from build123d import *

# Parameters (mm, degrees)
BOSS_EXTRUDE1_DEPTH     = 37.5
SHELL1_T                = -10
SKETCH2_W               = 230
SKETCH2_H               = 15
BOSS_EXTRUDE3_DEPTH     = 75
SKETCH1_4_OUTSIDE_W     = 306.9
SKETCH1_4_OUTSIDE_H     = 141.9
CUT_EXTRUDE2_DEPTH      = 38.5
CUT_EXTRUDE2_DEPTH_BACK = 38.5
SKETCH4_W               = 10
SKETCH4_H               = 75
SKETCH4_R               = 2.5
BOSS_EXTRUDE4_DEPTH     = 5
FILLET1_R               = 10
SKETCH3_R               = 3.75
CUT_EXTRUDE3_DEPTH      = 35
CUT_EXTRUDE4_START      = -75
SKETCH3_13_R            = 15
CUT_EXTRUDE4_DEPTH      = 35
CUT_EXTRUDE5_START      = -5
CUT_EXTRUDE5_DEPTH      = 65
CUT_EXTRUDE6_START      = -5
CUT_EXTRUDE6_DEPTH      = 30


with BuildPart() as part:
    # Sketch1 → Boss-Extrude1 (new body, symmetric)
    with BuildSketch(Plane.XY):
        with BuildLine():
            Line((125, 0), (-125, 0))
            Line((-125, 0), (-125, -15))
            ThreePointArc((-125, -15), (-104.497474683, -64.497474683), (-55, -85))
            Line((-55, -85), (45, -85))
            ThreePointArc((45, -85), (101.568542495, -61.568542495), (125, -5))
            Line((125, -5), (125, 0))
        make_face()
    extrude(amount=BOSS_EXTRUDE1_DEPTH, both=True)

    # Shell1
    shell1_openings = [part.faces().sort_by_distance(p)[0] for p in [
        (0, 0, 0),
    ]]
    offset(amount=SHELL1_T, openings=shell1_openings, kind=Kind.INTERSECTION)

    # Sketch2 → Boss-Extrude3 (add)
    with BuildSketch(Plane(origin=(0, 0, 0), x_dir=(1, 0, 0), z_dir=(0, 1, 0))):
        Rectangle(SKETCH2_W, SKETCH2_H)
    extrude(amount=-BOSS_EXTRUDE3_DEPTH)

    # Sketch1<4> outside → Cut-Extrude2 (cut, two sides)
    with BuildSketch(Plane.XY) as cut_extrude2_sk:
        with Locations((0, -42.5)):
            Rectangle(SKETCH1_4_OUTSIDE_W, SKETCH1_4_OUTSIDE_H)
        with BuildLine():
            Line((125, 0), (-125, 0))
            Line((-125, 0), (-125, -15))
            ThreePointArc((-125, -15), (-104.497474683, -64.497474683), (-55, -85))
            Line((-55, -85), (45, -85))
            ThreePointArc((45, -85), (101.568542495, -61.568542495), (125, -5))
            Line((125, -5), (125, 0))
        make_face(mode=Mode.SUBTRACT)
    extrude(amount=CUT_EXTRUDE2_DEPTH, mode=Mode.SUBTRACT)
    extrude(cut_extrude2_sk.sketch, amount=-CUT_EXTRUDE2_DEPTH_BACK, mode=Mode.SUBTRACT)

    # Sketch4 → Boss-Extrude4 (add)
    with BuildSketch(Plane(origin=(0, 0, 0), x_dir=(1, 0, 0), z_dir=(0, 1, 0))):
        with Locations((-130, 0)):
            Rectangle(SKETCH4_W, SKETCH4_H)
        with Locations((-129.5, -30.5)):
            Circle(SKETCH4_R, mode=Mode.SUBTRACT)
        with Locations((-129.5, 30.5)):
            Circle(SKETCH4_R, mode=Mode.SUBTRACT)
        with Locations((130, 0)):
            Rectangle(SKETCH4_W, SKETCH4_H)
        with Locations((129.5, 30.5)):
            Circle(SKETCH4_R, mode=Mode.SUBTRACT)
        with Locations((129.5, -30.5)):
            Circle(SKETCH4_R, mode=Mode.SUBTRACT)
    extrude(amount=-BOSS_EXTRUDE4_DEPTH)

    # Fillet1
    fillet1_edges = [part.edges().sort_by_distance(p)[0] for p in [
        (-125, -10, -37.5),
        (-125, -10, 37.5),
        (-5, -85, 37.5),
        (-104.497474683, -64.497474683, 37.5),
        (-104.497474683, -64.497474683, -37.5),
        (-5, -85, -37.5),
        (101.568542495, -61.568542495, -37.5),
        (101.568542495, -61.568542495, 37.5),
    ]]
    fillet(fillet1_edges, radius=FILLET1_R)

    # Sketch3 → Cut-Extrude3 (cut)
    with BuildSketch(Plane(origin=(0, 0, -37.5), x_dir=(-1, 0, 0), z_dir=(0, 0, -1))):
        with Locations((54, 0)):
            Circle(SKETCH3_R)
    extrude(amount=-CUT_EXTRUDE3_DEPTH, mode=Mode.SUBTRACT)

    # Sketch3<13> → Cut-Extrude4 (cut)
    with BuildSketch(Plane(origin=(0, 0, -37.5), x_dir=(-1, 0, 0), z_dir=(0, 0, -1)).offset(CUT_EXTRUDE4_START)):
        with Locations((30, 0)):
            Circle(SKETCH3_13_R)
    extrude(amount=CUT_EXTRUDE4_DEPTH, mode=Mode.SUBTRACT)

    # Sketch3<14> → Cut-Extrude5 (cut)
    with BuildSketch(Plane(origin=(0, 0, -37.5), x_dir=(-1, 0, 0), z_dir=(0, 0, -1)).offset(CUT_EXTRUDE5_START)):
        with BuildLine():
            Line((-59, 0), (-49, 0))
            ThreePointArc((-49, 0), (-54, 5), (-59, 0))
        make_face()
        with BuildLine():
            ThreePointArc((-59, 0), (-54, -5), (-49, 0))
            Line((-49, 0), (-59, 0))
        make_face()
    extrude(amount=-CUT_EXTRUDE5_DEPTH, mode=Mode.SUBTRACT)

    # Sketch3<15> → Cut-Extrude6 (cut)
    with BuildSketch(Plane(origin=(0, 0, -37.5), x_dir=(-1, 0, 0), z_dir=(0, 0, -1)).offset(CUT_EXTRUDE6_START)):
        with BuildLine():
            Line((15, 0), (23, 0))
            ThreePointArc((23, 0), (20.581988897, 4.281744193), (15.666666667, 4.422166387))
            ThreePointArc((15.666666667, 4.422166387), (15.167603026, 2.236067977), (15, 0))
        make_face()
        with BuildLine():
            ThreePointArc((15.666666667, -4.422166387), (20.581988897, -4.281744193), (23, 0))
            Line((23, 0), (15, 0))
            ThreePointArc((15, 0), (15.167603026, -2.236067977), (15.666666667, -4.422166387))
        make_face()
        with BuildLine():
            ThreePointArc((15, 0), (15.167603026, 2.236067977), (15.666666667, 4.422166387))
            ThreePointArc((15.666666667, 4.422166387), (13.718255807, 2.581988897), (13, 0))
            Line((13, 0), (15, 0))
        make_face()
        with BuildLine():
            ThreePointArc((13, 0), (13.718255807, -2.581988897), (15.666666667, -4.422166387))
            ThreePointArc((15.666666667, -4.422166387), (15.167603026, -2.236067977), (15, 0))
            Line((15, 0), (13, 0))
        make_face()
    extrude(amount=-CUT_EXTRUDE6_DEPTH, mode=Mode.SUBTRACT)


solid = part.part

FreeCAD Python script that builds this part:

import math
import FreeCAD as App
import Part
import Sketcher
from FreeCAD import Vector
Q = App.Units.Quantity


def edges_at(feature, points):
    """Names of the edges that pass closest to the given points."""
    edges = feature.Shape.Edges
    near = lambda p: min(range(len(edges)), key=lambda i: edges[i].distToShape(Part.Vertex(*p))[0])
    return sorted({f"Edge{near(p) + 1}" for p in points})


def faces_at(feature, points):
    """Names of the faces that lie closest to the given points."""
    faces = feature.Shape.Faces
    near = lambda p: min(range(len(faces)), key=lambda i: faces[i].distToShape(Part.Vertex(*p))[0])
    return sorted({f"Face{near(p) + 1}" for p in points})

doc = App.newDocument("Part")
body = doc.addObject("PartDesign::Body", "Body")

sketch1 = body.newObject("Sketcher::SketchObject", "Sketch")
sketch1.AttachmentSupport = (doc.getObject("XY_Plane"), [""])
sketch1.MapMode = "FlatFace"
sketch1.addGeometry([
    Part.LineSegment(Vector(125, 0, 0), Vector(-125, 0, 0)),
    Part.LineSegment(Vector(-125, 0, 0), Vector(-125, -15, 0)),
    Part.ArcOfCircle(Part.Circle(Vector(-55, -15, 0), Vector(0, 0, 1), 70), math.radians(180), math.radians(270)),
    Part.LineSegment(Vector(-55, -85, 0), Vector(45, -85, 0)),
    Part.ArcOfCircle(Part.Circle(Vector(45, -5, 0), Vector(0, 0, 1), 80), math.radians(-90), math.radians(0)),
    Part.LineSegment(Vector(125, -5, 0), Vector(125, 0, 0)),
], False)
sketch1.addConstraint([
    Sketcher.Constraint("Coincident", 0, 2, 1, 1),
    Sketcher.Constraint("Tangent", 1, 2, 2, 1),
    Sketcher.Constraint("Tangent", 2, 2, 3, 1),
    Sketcher.Constraint("Tangent", 3, 2, 4, 1),
    Sketcher.Constraint("Tangent", 4, 2, 5, 1),
    Sketcher.Constraint("Coincident", 5, 2, 0, 1),
    Sketcher.Constraint("Horizontal", 0),
    Sketcher.Constraint("Vertical", 1),
    Sketcher.Constraint("Horizontal", 3),
    Sketcher.Constraint("Vertical", 5),
    Sketcher.Constraint("Symmetric", 0, 2, 5, 2, -1, 1),
    Sketcher.Constraint("Radius", 2, Q("70 mm")),
    Sketcher.Constraint("Radius", 4, Q("80 mm")),
    Sketcher.Constraint("DistanceX", 0, 2, 0, 1, Q("250 mm")),
    Sketcher.Constraint("DistanceY", 1, 2, 1, 1, Q("15 mm")),
])
pad1 = body.newObject("PartDesign::Pad", "Pad")
pad1.Profile = sketch1
pad1.Length = 75
pad1.Midplane = True
doc.recompute()

thickness = body.newObject("PartDesign::Thickness", "Thickness")
thickness.Base = (pad1, faces_at(pad1, [(0, 0, 0)]))
thickness.Value = 10
thickness.Reversed = True
thickness.Join = "Intersection"

sketch2 = body.newObject("Sketcher::SketchObject", "Sketch001")
sketch2.AttachmentSupport = (doc.getObject("XZ_Plane"), [""])
sketch2.MapMode = "FlatFace"
sketch2.addGeometry([
    Part.LineSegment(Vector(-115, -8, 0), Vector(-115, 8, 0)),
    Part.LineSegment(Vector(-115, 8, 0), Vector(115, 8, 0)),
    Part.LineSegment(Vector(115, 8, 0), Vector(115, -8, 0)),
    Part.LineSegment(Vector(115, -8, 0), Vector(-115, -8, 0)),
], False)
sketch2.addConstraint([
    Sketcher.Constraint("Coincident", 0, 2, 1, 1),
    Sketcher.Constraint("Coincident", 1, 2, 2, 1),
    Sketcher.Constraint("Coincident", 2, 2, 3, 1),
    Sketcher.Constraint("Coincident", 3, 2, 0, 1),
    Sketcher.Constraint("Vertical", 0),
    Sketcher.Constraint("Horizontal", 1),
    Sketcher.Constraint("Vertical", 2),
    Sketcher.Constraint("Horizontal", 3),
    Sketcher.Constraint("Symmetric", 0, 2, 2, 2, -1, 1),
    Sketcher.Constraint("DistanceX", 1, 1, 1, 2, Q("230 mm")),
    Sketcher.Constraint("DistanceY", 0, 1, 0, 2, Q("15 mm")),
])
pad2 = body.newObject("PartDesign::Pad", "Pad001")
pad2.Profile = sketch2
pad2.Length = 75

sketch3 = body.newObject("Sketcher::SketchObject", "Sketch002")
sketch3.AttachmentSupport = (doc.getObject("XY_Plane"), [""])
sketch3.MapMode = "FlatFace"
sketch3.addGeometry([
    Part.LineSegment(Vector(-153, 28, 0), Vector(-153, -113, 0)),
    Part.LineSegment(Vector(-153, -113, 0), Vector(153, -113, 0)),
    Part.LineSegment(Vector(153, -113, 0), Vector(153, 28, 0)),
    Part.LineSegment(Vector(153, 28, 0), Vector(-153, 28, 0)),
    Part.LineSegment(Vector(-125, 0, 0), Vector(125, 0, 0)),
    Part.LineSegment(Vector(125, 0, 0), Vector(125, -5, 0)),
    Part.ArcOfCircle(Part.Circle(Vector(45, -5, 0), Vector(0, 0, 1), 80), math.radians(-90), math.radians(0)),
    Part.LineSegment(Vector(45, -85, 0), Vector(-55, -85, 0)),
    Part.ArcOfCircle(Part.Circle(Vector(-55, -15, 0), Vector(0, 0, 1), 70), math.radians(180), math.radians(270)),
    Part.LineSegment(Vector(-125, -15, 0), Vector(-125, 0, 0)),
], False)
sketch3.addConstraint([
    Sketcher.Constraint("Coincident", 0, 2, 1, 1),
    Sketcher.Constraint("Coincident", 1, 2, 2, 1),
    Sketcher.Constraint("Coincident", 2, 2, 3, 1),
    Sketcher.Constraint("Coincident", 3, 2, 0, 1),
    Sketcher.Constraint("Coincident", 4, 2, 5, 1),
    Sketcher.Constraint("Tangent", 5, 2, 6, 2),
    Sketcher.Constraint("Tangent", 6, 1, 7, 1),
    Sketcher.Constraint("Tangent", 7, 2, 8, 2),
    Sketcher.Constraint("Tangent", 8, 1, 9, 1),
    Sketcher.Constraint("Coincident", 9, 2, 4, 1),
    Sketcher.Constraint("Vertical", 0),
    Sketcher.Constraint("Horizontal", 1),
    Sketcher.Constraint("Vertical", 2),
    Sketcher.Constraint("Horizontal", 3),
    Sketcher.Constraint("Horizontal", 4),
    Sketcher.Constraint("Vertical", 5),
    Sketcher.Constraint("Horizontal", 7),
    Sketcher.Constraint("Vertical", 9),
    Sketcher.Constraint("Symmetric", 4, 2, 9, 2, -1, 1),
    Sketcher.Constraint("Radius", 6, Q("80 mm")),
    Sketcher.Constraint("Radius", 8, Q("70 mm")),
    Sketcher.Constraint("DistanceX", 4, 1, 4, 2, Q("250 mm")),
    Sketcher.Constraint("DistanceY", 5, 2, 5, 1, Q("5 mm")),
    Sketcher.Constraint("DistanceX", 1, 1, 1, 2, Q("306.9 mm")),
    Sketcher.Constraint("DistanceY", 0, 2, 0, 1, Q("141.9 mm")),
    Sketcher.Constraint("DistanceX", 0, 2, -1, 1, Q("153.45 mm")),
    Sketcher.Constraint("DistanceY", 0, 2, -1, 1, Q("113.45 mm")),
])
pocket1 = body.newObject("PartDesign::Pocket", "Pocket")
pocket1.Profile = sketch3
pocket1.Type = "ThroughAll"
pocket1.Midplane = True

sketch4 = body.newObject("Sketcher::SketchObject", "Sketch003")
sketch4.AttachmentSupport = (doc.getObject("XZ_Plane"), [""])
sketch4.MapMode = "FlatFace"
sketch4.addGeometry([
    Part.LineSegment(Vector(-135, -37.5, 0), Vector(-135, 37.5, 0)),
    Part.LineSegment(Vector(-135, 37.5, 0), Vector(-125, 37.5, 0)),
    Part.LineSegment(Vector(-125, 37.5, 0), Vector(-125, -37.5, 0)),
    Part.LineSegment(Vector(-125, -37.5, 0), Vector(-135, -37.5, 0)),
    Part.Circle(Vector(-129.5, 30.5, 0), Vector(0, 0, 1), 2.5),
    Part.Circle(Vector(-129.5, -30.5, 0), Vector(0, 0, 1), 2.5),
    Part.LineSegment(Vector(125, -37.5, 0), Vector(125, 37.5, 0)),
    Part.LineSegment(Vector(125, 37.5, 0), Vector(135, 37.5, 0)),
    Part.LineSegment(Vector(135, 37.5, 0), Vector(135, -37.5, 0)),
    Part.LineSegment(Vector(135, -37.5, 0), Vector(125, -37.5, 0)),
    Part.Circle(Vector(129.5, 30.5, 0), Vector(0, 0, 1), 2.5),
    Part.Circle(Vector(129.5, -30.5, 0), Vector(0, 0, 1), 2.5),
], False)
sketch4.addConstraint([
    Sketcher.Constraint("Coincident", 0, 2, 1, 1),
    Sketcher.Constraint("Coincident", 1, 2, 2, 1),
    Sketcher.Constraint("Coincident", 2, 2, 3, 1),
    Sketcher.Constraint("Coincident", 3, 2, 0, 1),
    Sketcher.Constraint("Coincident", 6, 2, 7, 1),
    Sketcher.Constraint("Coincident", 7, 2, 8, 1),
    Sketcher.Constraint("Coincident", 8, 2, 9, 1),
    Sketcher.Constraint("Coincident", 9, 2, 6, 1),
    Sketcher.Constraint("Vertical", 0),
    Sketcher.Constraint("Horizontal", 1),
    Sketcher.Constraint("Vertical", 2),
    Sketcher.Constraint("Horizontal", 3),
    Sketcher.Constraint("Vertical", 6),
    Sketcher.Constraint("Horizontal", 7),
    Sketcher.Constraint("Vertical", 8),
    Sketcher.Constraint("Horizontal", 9),
    Sketcher.Constraint("Equal", 4, 5),
    Sketcher.Constraint("Equal", 5, 10),
    Sketcher.Constraint("Equal", 10, 11),
    Sketcher.Constraint("Symmetric", 5, 3, 10, 3, -1, 1),
    Sketcher.Constraint("Symmetric", 4, 3, 11, 3, -1, 1),
    Sketcher.Constraint("Symmetric", 2, 2, 6, 2, -1, 1),
    Sketcher.Constraint("Symmetric", 0, 2, 8, 2, -1, 1),
    Sketcher.Constraint("Symmetric", 4, 3, 10, 3, -2),
    Sketcher.Constraint("Horizontal", 1, 2, 6, 2),
    Sketcher.Constraint("Diameter", 4, Q("5 mm")),
    Sketcher.Constraint("DistanceX", 1, 1, 1, 2, Q("10 mm")),
    Sketcher.Constraint("DistanceY", 0, 1, 0, 2, Q("75 mm")),
    Sketcher.Constraint("DistanceX", 0, 2, -1, 1, Q("135 mm")),
    Sketcher.Constraint("DistanceY", 5, 3, 4, 3, Q("61 mm")),
    Sketcher.Constraint("DistanceX", 4, 3, 10, 3, Q("259 mm")),
])
pad3 = body.newObject("PartDesign::Pad", "Pad002")
pad3.Profile = sketch4
pad3.Length = 5
doc.recompute()

fillet = body.newObject("PartDesign::Fillet", "Fillet")
fillet.Base = (pad3, edges_at(pad3, [
    (-125, -10, -37.5),
    (-125, -10, 37.5),
    (-5, -85, 37.5),
    (-104.497, -64.497, 37.5),
    (-104.497, -64.497, -37.5),
    (-5, -85, -37.5),
    (101.569, -61.569, -37.5),
    (101.569, -61.569, 37.5),
]))
fillet.Radius = 10

sketch5 = body.newObject("Sketcher::SketchObject", "Sketch004")
sketch5.AttachmentSupport = (doc.getObject("XY_Plane"), [""])
sketch5.MapMode = "FlatFace"
sketch5.AttachmentOffset = App.Placement(Vector(0, 0, -37.5), App.Rotation())
sketch5.addGeometry(Part.Circle(Vector(-54, 0, 0), Vector(0, 0, 1), 3.8), False)
sketch5.addConstraint([
    Sketcher.Constraint("PointOnObject", 0, 3, -1),
    Sketcher.Constraint("Diameter", 0, Q("7.5 mm")),
    Sketcher.Constraint("DistanceX", 0, 3, -1, 1, Q("54 mm")),
])
pocket2 = body.newObject("PartDesign::Pocket", "Pocket001")
pocket2.Profile = sketch5
pocket2.Length = 35
pocket2.Reversed = True

sketch6 = body.newObject("Sketcher::SketchObject", "Sketch005")
sketch6.AttachmentSupport = (doc.getObject("XY_Plane"), [""])
sketch6.MapMode = "FlatFace"
sketch6.AttachmentOffset = App.Placement(Vector(0, 0, 37.5), App.Rotation())
sketch6.addGeometry(Part.Circle(Vector(-30, 0, 0), Vector(0, 0, 1), 15), False)
sketch6.addConstraint([
    Sketcher.Constraint("PointOnObject", 0, 3, -1),
    Sketcher.Constraint("Diameter", 0, Q("30 mm")),
    Sketcher.Constraint("DistanceX", 0, 3, -1, 1, Q("30 mm")),
])
pocket3 = body.newObject("PartDesign::Pocket", "Pocket002")
pocket3.Profile = sketch6
pocket3.Length = 35

sketch7 = body.newObject("Sketcher::SketchObject", "Sketch006")
sketch7.AttachmentSupport = (doc.getObject("XY_Plane"), [""])
sketch7.MapMode = "FlatFace"
sketch7.AttachmentOffset = App.Placement(Vector(0, 0, -32.5), App.Rotation())
sketch7.addGeometry(Part.Circle(Vector(54, 0, 0), Vector(0, 0, 1), 5), False)
sketch7.addConstraint([
    Sketcher.Constraint("PointOnObject", 0, 3, -1),
    Sketcher.Constraint("Diameter", 0, Q("10 mm")),
    Sketcher.Constraint("DistanceX", -1, 1, 0, 3, Q("54 mm")),
])
pocket4 = body.newObject("PartDesign::Pocket", "Pocket003")
pocket4.Profile = sketch7
pocket4.Length = 65
pocket4.Reversed = True

sketch8 = body.newObject("Sketcher::SketchObject", "Sketch007")
sketch8.AttachmentSupport = (doc.getObject("XY_Plane"), [""])
sketch8.MapMode = "FlatFace"
sketch8.AttachmentOffset = App.Placement(Vector(0, 0, -32.5), App.Rotation())
sketch8.addGeometry([
    Part.ArcOfCircle(Part.Circle(Vector(-18, 0, 0), Vector(0, 0, 1), 5), math.radians(180), math.radians(298)),
    Part.ArcOfCircle(Part.Circle(Vector(-18, 0, 0), Vector(0, 0, 1), 5), math.radians(62), math.radians(180)),
    Part.ArcOfCircle(Part.Circle(Vector(-18, 0, 0), Vector(0, 0, 1), 5), math.radians(0), math.radians(62)),
    Part.ArcOfCircle(Part.Circle(Vector(-18, 0, 0), Vector(0, 0, 1), 5), math.radians(-62), math.radians(0)),
], False)
sketch8.addConstraint([
    Sketcher.Constraint("Tangent", 0, 1, 1, 2),
    Sketcher.Constraint("Tangent", 1, 1, 2, 2),
    Sketcher.Constraint("Tangent", 2, 1, 3, 2),
    Sketcher.Constraint("Tangent", 3, 1, 0, 2),
    Sketcher.Constraint("Equal", 0, 1),
    Sketcher.Constraint("Symmetric", 1, 1, 3, 1, -1),
    Sketcher.Constraint("PointOnObject", 0, 1, -1),
    Sketcher.Constraint("PointOnObject", 2, 1, -1),
    Sketcher.Constraint("Radius", 0, Q("5 mm")),
    Sketcher.Constraint("DistanceX", 0, 3, -1, 1, Q("18 mm")),
    Sketcher.Constraint("DistanceX", 1, 1, -1, 1, Q("15.666667 mm")),
])
pocket5 = body.newObject("PartDesign::Pocket", "Pocket004")
pocket5.Profile = sketch8
pocket5.Length = 30
pocket5.Reversed = True

doc.recompute()
